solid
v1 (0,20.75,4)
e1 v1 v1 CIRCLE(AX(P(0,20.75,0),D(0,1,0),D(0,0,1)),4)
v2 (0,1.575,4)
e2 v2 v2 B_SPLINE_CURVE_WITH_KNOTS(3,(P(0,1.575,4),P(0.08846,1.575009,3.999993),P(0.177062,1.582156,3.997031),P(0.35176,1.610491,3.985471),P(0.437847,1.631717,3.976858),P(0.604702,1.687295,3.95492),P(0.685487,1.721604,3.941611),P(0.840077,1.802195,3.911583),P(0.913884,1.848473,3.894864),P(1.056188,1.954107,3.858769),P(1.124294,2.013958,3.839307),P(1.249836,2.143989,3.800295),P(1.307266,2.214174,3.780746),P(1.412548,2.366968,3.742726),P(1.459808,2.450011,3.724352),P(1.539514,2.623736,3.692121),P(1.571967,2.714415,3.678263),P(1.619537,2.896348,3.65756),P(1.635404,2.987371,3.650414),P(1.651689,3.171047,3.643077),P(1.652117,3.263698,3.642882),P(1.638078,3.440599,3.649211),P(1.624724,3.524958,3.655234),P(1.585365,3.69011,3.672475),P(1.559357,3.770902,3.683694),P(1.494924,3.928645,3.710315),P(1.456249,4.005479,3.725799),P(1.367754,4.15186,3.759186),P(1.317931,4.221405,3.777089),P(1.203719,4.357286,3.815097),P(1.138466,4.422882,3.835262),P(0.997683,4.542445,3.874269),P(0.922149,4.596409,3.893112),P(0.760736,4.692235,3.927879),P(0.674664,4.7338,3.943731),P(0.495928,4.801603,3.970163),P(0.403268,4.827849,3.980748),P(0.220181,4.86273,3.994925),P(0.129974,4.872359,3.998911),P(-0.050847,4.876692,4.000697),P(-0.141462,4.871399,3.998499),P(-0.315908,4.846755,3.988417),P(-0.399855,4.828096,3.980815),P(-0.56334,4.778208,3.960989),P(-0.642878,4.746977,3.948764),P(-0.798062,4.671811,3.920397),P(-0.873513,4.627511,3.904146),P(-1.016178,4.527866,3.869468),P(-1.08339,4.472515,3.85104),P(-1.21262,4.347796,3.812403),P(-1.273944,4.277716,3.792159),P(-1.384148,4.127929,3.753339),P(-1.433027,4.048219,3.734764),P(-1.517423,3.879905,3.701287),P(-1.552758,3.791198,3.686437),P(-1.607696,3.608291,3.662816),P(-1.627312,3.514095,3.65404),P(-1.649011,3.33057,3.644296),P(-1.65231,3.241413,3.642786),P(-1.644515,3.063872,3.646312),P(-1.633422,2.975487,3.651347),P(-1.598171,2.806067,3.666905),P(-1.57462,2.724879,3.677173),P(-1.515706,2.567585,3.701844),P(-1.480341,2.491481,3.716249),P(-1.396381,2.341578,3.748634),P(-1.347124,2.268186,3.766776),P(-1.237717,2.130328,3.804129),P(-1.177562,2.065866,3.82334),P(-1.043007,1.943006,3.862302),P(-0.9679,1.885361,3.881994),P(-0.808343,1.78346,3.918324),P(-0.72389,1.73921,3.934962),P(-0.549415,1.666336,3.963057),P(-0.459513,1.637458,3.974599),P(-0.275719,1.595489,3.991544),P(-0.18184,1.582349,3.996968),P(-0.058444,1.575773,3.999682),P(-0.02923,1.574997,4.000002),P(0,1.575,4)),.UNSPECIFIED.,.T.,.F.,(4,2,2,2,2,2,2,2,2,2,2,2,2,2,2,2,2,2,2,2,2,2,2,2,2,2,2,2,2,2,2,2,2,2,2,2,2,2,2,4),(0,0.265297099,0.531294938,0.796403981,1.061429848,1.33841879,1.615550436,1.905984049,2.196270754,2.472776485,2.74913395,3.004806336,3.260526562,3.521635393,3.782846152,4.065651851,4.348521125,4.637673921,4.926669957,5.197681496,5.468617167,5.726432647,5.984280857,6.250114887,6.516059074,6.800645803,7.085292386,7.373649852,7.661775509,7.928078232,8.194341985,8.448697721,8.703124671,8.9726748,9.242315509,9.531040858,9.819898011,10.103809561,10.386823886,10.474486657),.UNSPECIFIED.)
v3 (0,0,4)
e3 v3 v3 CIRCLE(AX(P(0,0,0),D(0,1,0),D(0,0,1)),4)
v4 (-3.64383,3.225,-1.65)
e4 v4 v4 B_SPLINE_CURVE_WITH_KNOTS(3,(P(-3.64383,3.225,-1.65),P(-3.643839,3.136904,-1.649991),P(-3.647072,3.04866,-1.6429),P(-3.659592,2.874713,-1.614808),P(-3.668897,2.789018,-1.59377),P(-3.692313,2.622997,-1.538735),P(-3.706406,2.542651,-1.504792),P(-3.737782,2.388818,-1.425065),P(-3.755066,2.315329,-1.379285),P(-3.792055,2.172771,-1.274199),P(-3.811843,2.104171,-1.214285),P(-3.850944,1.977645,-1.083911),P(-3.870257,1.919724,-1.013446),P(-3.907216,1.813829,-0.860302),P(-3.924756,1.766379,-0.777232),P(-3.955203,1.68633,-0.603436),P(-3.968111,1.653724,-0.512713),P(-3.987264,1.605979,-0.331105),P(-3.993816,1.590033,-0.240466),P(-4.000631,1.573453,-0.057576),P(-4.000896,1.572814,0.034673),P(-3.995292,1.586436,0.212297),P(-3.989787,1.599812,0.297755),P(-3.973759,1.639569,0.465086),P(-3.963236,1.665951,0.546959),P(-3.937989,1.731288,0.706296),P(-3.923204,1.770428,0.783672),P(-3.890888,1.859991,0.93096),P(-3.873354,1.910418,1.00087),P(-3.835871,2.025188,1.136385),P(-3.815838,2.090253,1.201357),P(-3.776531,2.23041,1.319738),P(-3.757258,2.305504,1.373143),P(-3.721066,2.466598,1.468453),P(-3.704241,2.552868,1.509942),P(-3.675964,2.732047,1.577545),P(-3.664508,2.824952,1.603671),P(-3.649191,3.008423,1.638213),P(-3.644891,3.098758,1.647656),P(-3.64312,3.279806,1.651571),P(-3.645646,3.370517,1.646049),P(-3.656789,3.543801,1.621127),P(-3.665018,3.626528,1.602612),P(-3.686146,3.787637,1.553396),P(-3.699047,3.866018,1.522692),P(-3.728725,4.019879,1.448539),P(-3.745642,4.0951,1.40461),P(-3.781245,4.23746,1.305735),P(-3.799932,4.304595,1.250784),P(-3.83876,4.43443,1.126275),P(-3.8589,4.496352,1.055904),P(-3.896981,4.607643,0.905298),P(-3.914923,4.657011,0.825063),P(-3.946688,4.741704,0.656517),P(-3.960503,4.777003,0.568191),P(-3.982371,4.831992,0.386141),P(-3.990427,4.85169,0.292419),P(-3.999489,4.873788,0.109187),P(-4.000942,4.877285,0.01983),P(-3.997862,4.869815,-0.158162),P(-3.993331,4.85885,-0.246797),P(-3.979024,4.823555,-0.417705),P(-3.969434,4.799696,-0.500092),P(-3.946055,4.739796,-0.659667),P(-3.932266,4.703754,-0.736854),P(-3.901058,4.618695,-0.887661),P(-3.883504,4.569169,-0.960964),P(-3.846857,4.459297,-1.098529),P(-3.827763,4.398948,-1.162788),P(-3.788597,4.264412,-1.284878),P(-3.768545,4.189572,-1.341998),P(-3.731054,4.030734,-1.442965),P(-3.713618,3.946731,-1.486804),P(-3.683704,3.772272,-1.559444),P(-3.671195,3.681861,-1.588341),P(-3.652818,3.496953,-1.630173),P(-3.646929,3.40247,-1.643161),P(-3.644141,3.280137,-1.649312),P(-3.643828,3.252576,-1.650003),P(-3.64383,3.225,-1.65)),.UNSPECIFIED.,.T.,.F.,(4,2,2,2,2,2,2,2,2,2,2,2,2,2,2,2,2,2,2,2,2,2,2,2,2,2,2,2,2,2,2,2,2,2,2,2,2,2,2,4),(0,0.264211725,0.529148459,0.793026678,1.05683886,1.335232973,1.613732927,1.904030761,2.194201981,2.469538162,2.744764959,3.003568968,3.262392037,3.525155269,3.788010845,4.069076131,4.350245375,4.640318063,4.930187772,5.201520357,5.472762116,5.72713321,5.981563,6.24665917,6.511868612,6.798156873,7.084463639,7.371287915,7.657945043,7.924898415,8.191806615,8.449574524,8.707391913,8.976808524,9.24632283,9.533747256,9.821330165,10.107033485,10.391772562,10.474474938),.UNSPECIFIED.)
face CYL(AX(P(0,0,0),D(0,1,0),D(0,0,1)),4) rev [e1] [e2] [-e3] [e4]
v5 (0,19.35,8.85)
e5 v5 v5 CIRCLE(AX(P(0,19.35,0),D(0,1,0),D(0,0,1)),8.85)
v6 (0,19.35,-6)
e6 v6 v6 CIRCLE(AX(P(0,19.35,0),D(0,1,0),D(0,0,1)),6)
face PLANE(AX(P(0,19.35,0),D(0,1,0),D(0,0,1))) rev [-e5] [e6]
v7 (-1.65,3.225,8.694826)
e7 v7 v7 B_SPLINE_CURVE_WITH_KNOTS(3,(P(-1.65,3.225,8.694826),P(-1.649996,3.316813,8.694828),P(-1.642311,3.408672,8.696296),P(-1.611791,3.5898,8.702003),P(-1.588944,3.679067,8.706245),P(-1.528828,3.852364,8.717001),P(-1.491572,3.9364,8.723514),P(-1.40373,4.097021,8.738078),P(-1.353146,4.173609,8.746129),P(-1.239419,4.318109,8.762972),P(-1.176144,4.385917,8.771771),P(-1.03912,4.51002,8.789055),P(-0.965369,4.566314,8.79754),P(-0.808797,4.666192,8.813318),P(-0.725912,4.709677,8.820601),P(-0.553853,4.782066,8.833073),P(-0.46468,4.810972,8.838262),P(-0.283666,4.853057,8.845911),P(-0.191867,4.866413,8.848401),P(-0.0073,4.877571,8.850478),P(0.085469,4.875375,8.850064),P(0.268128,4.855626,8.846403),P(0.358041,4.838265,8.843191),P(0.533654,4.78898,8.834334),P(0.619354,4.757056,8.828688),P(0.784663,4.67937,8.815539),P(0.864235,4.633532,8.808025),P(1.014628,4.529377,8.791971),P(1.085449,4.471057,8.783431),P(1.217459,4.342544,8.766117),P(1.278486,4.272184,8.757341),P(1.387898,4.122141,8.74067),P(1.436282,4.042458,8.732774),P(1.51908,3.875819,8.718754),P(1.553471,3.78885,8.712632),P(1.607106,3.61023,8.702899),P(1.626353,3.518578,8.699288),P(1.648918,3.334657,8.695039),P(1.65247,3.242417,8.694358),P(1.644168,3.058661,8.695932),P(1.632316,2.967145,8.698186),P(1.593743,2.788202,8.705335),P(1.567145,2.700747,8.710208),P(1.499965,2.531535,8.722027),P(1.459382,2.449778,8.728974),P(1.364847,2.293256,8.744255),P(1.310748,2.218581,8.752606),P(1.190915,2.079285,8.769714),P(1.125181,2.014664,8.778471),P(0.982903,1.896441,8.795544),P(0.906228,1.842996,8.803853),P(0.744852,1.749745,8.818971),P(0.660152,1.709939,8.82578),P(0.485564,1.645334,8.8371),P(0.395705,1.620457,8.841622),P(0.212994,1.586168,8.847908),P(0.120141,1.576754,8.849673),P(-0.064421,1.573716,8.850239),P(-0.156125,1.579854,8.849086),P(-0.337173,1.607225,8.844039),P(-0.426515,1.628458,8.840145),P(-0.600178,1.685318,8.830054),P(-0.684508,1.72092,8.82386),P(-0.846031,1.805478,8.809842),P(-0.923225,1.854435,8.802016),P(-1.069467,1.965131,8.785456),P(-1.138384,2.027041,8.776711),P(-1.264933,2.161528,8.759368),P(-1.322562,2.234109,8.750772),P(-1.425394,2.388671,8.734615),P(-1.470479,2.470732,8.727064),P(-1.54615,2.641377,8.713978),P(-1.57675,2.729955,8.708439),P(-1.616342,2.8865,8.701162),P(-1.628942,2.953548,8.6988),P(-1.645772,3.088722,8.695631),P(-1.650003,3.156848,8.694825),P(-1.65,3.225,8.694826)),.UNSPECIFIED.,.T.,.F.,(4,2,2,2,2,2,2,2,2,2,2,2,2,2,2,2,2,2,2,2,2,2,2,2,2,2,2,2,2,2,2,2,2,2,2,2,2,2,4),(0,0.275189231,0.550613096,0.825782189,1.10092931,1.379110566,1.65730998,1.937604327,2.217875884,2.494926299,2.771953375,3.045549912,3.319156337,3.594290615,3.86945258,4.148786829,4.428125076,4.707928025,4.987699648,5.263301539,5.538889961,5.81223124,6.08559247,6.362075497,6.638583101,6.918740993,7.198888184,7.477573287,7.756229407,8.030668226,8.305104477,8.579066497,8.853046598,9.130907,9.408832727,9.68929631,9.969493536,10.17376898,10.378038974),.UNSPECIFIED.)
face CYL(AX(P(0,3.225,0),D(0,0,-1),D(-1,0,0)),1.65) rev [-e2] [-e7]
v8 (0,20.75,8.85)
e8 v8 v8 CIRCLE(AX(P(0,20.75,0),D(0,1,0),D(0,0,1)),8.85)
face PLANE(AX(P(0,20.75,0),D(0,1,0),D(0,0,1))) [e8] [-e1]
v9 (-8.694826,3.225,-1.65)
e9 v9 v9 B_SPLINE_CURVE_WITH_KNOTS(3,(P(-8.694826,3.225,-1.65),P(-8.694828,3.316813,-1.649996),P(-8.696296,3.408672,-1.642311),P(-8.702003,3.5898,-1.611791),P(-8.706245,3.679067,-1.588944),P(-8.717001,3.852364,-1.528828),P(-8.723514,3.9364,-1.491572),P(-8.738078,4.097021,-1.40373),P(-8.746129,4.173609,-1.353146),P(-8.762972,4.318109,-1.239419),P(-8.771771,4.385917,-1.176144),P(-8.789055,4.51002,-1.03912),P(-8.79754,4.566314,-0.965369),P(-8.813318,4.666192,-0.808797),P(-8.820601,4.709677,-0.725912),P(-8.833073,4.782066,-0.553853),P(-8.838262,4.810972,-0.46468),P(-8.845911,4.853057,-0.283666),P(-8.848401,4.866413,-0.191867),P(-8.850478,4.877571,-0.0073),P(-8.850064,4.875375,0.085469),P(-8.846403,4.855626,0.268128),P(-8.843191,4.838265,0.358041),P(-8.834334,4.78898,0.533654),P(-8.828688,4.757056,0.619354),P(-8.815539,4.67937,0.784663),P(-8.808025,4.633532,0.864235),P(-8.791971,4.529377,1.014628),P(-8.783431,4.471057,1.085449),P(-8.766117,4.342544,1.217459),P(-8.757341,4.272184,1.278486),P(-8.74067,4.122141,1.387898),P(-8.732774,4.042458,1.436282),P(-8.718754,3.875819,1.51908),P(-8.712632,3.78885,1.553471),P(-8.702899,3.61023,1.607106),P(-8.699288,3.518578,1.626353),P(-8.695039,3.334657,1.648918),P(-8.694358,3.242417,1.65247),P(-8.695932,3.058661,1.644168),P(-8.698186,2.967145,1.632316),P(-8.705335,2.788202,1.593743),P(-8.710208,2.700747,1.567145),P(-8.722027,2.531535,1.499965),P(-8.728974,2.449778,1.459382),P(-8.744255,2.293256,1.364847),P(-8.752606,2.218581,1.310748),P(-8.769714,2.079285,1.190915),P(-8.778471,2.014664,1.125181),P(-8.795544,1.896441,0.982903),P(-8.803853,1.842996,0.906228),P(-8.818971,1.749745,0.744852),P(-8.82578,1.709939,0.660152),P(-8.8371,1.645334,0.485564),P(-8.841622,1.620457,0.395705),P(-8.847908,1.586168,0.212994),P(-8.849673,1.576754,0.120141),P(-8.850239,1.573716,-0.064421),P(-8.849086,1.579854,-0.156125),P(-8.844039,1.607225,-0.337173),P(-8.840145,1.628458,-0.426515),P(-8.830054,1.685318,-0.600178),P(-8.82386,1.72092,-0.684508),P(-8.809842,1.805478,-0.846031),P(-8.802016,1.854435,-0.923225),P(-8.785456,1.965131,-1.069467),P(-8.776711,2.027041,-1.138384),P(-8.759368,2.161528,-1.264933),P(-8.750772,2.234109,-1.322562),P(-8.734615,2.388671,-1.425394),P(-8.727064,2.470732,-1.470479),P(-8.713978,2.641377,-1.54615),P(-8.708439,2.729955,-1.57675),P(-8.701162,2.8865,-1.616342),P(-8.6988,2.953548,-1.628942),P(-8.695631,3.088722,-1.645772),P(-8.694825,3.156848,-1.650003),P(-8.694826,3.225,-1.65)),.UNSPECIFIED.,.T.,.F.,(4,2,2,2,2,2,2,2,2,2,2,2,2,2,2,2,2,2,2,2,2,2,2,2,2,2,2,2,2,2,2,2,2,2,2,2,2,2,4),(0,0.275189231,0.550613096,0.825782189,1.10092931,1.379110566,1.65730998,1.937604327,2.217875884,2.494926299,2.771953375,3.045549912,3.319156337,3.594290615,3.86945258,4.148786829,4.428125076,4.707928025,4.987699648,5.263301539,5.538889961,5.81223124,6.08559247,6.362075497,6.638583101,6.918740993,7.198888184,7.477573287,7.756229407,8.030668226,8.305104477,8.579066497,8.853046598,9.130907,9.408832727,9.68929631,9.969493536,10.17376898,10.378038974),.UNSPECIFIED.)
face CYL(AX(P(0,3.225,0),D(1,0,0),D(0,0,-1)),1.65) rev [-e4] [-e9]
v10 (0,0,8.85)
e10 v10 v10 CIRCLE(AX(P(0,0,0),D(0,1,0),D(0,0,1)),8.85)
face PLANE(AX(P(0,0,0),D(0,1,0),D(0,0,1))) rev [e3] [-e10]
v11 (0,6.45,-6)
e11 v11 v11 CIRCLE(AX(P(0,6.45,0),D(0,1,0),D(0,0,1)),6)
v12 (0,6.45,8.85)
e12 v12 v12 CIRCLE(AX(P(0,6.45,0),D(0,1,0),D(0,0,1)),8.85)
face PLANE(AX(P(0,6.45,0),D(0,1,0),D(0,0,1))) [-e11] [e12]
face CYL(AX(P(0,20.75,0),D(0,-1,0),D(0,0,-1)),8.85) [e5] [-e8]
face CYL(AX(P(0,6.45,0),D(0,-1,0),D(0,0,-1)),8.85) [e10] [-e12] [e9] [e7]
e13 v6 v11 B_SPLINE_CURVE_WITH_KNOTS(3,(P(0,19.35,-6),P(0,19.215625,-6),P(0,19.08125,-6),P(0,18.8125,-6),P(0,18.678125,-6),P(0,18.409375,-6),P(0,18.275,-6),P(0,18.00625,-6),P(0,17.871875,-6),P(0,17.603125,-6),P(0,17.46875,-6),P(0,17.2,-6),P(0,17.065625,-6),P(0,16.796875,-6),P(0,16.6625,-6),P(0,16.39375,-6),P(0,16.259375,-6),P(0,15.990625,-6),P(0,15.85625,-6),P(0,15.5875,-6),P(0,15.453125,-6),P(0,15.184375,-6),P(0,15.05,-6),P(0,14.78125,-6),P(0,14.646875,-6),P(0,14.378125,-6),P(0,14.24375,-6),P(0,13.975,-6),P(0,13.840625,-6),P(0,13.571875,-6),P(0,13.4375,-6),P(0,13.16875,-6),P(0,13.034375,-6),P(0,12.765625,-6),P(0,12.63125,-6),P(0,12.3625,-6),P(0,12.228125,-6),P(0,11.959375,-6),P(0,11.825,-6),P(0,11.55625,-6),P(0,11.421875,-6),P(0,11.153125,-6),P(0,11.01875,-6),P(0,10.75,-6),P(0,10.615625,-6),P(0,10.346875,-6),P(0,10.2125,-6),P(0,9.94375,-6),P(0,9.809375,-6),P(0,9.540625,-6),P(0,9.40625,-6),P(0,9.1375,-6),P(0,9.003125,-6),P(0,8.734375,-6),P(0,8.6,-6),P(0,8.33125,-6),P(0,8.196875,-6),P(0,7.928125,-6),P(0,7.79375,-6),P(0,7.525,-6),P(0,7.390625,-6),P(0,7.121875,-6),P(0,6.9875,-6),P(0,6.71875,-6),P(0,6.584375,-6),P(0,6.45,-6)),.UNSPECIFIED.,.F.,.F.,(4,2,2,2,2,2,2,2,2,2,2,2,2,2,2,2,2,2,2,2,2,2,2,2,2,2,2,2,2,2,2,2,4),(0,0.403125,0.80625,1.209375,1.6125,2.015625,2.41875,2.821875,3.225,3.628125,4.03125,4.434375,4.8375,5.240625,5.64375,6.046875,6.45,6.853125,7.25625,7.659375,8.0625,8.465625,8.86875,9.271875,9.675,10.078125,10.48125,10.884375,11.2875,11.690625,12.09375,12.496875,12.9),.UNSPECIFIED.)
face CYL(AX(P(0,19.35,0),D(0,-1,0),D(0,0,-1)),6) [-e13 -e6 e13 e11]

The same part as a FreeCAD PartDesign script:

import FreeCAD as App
import Part
import Sketcher


def add_polygon(sketch, points):
    """Adds a closed chain of lines whose ends are joined by coincident constraints."""
    first, n = sketch.GeometryCount, len(points)
    for a, b in zip(points, points[1:] + points[:1]):
        sketch.addGeometry(Part.LineSegment(App.Vector(*a, 0), App.Vector(*b, 0)), False)
    for i in range(n):
        sketch.addConstraint(Sketcher.Constraint("Coincident", first + i, 2, first + (i + 1) % n, 1))

doc = App.newDocument("Part")
params = doc.addObject("Spreadsheet::Sheet", "Params")
for row, (alias, value) in enumerate([
    ("sketch1_diameter", "17.7 mm"),
    ("pad1_length", "6.45 mm"),
    ("sketch2_diameter", "12 mm"),
    ("pad2_length", "12.9 mm"),
    ("sketch3_diameter", "17.7 mm"),
    ("pad3_length", "1.4 mm"),
    ("sketch4_diameter", "8 mm"),
    ("sketch5_width", "1.65 mm"),
    ("groove_angle", "360 deg"),
], start=1):
    params.set(f"A{row}", alias)
    params.set(f"B{row}", "=" + value)
    params.setAlias(f"B{row}", alias)

body = doc.addObject("PartDesign::Body", "Body")

# Sketch on XZ plane
sketch1 = doc.addObject("Sketcher::SketchObject", "Sketch")
body.addObject(sketch1)
sketch1.AttachmentSupport = (doc.XZ_Plane, [""])
sketch1.MapMode = "FlatFace"
sketch1.addGeometry(Part.Circle(App.Vector(0, 0, 0), App.Vector(0, 0, 1), 8.85), False)
sketch1.addConstraint(Sketcher.Constraint("Coincident", 0, 3, -1, 1))
sketch1.addConstraint(Sketcher.Constraint("Diameter", 0, 17.7))
sketch1.setExpression("Constraints[1]", "Params.sketch1_diameter")
pad1 = doc.addObject("PartDesign::Pad", "Pad")
body.addObject(pad1)
pad1.Profile = sketch1
pad1.setExpression("Length", "Params.pad1_length")
pad1.Reversed = True

# Sketch on XZ plane
sketch2 = doc.addObject("Sketcher::SketchObject", "Sketch001")
body.addObject(sketch2)
sketch2.AttachmentSupport = (doc.XZ_Plane, [""])
sketch2.MapMode = "FlatFace"
sketch2.AttachmentOffset = App.Placement(App.Vector(0, 0, -6.45), App.Rotation())
sketch2.addGeometry(Part.Circle(App.Vector(0, 0, 0), App.Vector(0, 0, 1), 6), False)
sketch2.addConstraint(Sketcher.Constraint("Coincident", 0, 3, -1, 1))
sketch2.addConstraint(Sketcher.Constraint("Diameter", 0, 12.0))
sketch2.setExpression("Constraints[1]", "Params.sketch2_diameter")
pad2 = doc.addObject("PartDesign::Pad", "Pad001")
body.addObject(pad2)
pad2.Profile = sketch2
pad2.setExpression("Length", "Params.pad2_length")
pad2.Reversed = True

# Sketch on XZ plane
sketch3 = doc.addObject("Sketcher::SketchObject", "Sketch002")
body.addObject(sketch3)
sketch3.AttachmentSupport = (doc.XZ_Plane, [""])
sketch3.MapMode = "FlatFace"
sketch3.AttachmentOffset = App.Placement(App.Vector(0, 0, -19.35), App.Rotation())
sketch3.addGeometry(Part.Circle(App.Vector(0, 0, 0), App.Vector(0, 0, 1), 8.85), False)
sketch3.addConstraint(Sketcher.Constraint("Coincident", 0, 3, -1, 1))
sketch3.addConstraint(Sketcher.Constraint("Diameter", 0, 17.7))
sketch3.setExpression("Constraints[1]", "Params.sketch3_diameter")
pad3 = doc.addObject("PartDesign::Pad", "Pad002")
body.addObject(pad3)
pad3.Profile = sketch3
pad3.setExpression("Length", "Params.pad3_length")
pad3.Reversed = True

# Sketch on XZ plane
sketch4 = doc.addObject("Sketcher::SketchObject", "Sketch003")
body.addObject(sketch4)
sketch4.AttachmentSupport = (doc.XZ_Plane, [""])
sketch4.MapMode = "FlatFace"
sketch4.AttachmentOffset = App.Placement(App.Vector(0, 0, -20.75), App.Rotation())
sketch4.addGeometry(Part.Circle(App.Vector(0, 0, 0), App.Vector(0, 0, 1), 4), False)
sketch4.addConstraint(Sketcher.Constraint("Coincident", 0, 3, -1, 1))
sketch4.addConstraint(Sketcher.Constraint("Diameter", 0, 8.0))
sketch4.setExpression("Constraints[1]", "Params.sketch4_diameter")
pocket1 = doc.addObject("PartDesign::Pocket", "Pocket")
body.addObject(pocket1)
pocket1.Profile = sketch4
pocket1.Type = "ThroughAll"
pocket1.Reversed = True

# Sketch on YZ plane
sketch5 = doc.addObject("Sketcher::SketchObject", "Sketch004")
body.addObject(sketch5)
sketch5.AttachmentSupport = (doc.YZ_Plane, [""])
sketch5.MapMode = "FlatFace"
add_polygon(sketch5, [(3.225, 8.851), (3.225, 0), (4.875, 0), (4.875, 8.851)])  # lines 0-3
sketch5.addGeometry(Part.LineSegment(App.Vector(3.225, 0, 0), App.Vector(3.225, 8.851, 0)), True)  # axis
sketch5.addConstraint(Sketcher.Constraint("Vertical", 0))
sketch5.addConstraint(Sketcher.Constraint("Horizontal", 1))
sketch5.addConstraint(Sketcher.Constraint("Vertical", 2))
sketch5.addConstraint(Sketcher.Constraint("Horizontal", 3))
sketch5.addConstraint(Sketcher.Constraint("Vertical", 4))
sketch5.addConstraint(Sketcher.Constraint("Coincident", 4, 1, 0, 2))
sketch5.addConstraint(Sketcher.Constraint("PointOnObject", 0, 2, -1))
sketch5.addConstraint(Sketcher.Constraint("Horizontal", 2, 2, 4, 2))
sketch5.addConstraint(Sketcher.Constraint("DistanceX", 1, 1, 1, 2, 1.65))
sketch5.addConstraint(Sketcher.Constraint("DistanceY", 0, 2, 0, 1, 8.851))
sketch5.addConstraint(Sketcher.Constraint("DistanceX", -1, 1, 0, 2, 3.225))
sketch5.setExpression("Constraints[12]", "Params.sketch5_width")
groove = doc.addObject("PartDesign::Groove", "Groove")
body.addObject(groove)
groove.Profile = sketch5
groove.ReferenceAxis = (sketch5, ["Axis0"])
groove.setExpression("Angle", "Params.groove_angle")
doc.recompute()

polarpattern = doc.addObject("PartDesign::PolarPattern", "PolarPattern")
body.addObject(polarpattern)
polarpattern.Originals = [groove]
polarpattern.Axis = (doc.Y_Axis, [""])
polarpattern.Angle = 90
polarpattern.Occurrences = 2
polarpattern.Reversed = True
body.Tip = polarpattern

doc.recompute()
